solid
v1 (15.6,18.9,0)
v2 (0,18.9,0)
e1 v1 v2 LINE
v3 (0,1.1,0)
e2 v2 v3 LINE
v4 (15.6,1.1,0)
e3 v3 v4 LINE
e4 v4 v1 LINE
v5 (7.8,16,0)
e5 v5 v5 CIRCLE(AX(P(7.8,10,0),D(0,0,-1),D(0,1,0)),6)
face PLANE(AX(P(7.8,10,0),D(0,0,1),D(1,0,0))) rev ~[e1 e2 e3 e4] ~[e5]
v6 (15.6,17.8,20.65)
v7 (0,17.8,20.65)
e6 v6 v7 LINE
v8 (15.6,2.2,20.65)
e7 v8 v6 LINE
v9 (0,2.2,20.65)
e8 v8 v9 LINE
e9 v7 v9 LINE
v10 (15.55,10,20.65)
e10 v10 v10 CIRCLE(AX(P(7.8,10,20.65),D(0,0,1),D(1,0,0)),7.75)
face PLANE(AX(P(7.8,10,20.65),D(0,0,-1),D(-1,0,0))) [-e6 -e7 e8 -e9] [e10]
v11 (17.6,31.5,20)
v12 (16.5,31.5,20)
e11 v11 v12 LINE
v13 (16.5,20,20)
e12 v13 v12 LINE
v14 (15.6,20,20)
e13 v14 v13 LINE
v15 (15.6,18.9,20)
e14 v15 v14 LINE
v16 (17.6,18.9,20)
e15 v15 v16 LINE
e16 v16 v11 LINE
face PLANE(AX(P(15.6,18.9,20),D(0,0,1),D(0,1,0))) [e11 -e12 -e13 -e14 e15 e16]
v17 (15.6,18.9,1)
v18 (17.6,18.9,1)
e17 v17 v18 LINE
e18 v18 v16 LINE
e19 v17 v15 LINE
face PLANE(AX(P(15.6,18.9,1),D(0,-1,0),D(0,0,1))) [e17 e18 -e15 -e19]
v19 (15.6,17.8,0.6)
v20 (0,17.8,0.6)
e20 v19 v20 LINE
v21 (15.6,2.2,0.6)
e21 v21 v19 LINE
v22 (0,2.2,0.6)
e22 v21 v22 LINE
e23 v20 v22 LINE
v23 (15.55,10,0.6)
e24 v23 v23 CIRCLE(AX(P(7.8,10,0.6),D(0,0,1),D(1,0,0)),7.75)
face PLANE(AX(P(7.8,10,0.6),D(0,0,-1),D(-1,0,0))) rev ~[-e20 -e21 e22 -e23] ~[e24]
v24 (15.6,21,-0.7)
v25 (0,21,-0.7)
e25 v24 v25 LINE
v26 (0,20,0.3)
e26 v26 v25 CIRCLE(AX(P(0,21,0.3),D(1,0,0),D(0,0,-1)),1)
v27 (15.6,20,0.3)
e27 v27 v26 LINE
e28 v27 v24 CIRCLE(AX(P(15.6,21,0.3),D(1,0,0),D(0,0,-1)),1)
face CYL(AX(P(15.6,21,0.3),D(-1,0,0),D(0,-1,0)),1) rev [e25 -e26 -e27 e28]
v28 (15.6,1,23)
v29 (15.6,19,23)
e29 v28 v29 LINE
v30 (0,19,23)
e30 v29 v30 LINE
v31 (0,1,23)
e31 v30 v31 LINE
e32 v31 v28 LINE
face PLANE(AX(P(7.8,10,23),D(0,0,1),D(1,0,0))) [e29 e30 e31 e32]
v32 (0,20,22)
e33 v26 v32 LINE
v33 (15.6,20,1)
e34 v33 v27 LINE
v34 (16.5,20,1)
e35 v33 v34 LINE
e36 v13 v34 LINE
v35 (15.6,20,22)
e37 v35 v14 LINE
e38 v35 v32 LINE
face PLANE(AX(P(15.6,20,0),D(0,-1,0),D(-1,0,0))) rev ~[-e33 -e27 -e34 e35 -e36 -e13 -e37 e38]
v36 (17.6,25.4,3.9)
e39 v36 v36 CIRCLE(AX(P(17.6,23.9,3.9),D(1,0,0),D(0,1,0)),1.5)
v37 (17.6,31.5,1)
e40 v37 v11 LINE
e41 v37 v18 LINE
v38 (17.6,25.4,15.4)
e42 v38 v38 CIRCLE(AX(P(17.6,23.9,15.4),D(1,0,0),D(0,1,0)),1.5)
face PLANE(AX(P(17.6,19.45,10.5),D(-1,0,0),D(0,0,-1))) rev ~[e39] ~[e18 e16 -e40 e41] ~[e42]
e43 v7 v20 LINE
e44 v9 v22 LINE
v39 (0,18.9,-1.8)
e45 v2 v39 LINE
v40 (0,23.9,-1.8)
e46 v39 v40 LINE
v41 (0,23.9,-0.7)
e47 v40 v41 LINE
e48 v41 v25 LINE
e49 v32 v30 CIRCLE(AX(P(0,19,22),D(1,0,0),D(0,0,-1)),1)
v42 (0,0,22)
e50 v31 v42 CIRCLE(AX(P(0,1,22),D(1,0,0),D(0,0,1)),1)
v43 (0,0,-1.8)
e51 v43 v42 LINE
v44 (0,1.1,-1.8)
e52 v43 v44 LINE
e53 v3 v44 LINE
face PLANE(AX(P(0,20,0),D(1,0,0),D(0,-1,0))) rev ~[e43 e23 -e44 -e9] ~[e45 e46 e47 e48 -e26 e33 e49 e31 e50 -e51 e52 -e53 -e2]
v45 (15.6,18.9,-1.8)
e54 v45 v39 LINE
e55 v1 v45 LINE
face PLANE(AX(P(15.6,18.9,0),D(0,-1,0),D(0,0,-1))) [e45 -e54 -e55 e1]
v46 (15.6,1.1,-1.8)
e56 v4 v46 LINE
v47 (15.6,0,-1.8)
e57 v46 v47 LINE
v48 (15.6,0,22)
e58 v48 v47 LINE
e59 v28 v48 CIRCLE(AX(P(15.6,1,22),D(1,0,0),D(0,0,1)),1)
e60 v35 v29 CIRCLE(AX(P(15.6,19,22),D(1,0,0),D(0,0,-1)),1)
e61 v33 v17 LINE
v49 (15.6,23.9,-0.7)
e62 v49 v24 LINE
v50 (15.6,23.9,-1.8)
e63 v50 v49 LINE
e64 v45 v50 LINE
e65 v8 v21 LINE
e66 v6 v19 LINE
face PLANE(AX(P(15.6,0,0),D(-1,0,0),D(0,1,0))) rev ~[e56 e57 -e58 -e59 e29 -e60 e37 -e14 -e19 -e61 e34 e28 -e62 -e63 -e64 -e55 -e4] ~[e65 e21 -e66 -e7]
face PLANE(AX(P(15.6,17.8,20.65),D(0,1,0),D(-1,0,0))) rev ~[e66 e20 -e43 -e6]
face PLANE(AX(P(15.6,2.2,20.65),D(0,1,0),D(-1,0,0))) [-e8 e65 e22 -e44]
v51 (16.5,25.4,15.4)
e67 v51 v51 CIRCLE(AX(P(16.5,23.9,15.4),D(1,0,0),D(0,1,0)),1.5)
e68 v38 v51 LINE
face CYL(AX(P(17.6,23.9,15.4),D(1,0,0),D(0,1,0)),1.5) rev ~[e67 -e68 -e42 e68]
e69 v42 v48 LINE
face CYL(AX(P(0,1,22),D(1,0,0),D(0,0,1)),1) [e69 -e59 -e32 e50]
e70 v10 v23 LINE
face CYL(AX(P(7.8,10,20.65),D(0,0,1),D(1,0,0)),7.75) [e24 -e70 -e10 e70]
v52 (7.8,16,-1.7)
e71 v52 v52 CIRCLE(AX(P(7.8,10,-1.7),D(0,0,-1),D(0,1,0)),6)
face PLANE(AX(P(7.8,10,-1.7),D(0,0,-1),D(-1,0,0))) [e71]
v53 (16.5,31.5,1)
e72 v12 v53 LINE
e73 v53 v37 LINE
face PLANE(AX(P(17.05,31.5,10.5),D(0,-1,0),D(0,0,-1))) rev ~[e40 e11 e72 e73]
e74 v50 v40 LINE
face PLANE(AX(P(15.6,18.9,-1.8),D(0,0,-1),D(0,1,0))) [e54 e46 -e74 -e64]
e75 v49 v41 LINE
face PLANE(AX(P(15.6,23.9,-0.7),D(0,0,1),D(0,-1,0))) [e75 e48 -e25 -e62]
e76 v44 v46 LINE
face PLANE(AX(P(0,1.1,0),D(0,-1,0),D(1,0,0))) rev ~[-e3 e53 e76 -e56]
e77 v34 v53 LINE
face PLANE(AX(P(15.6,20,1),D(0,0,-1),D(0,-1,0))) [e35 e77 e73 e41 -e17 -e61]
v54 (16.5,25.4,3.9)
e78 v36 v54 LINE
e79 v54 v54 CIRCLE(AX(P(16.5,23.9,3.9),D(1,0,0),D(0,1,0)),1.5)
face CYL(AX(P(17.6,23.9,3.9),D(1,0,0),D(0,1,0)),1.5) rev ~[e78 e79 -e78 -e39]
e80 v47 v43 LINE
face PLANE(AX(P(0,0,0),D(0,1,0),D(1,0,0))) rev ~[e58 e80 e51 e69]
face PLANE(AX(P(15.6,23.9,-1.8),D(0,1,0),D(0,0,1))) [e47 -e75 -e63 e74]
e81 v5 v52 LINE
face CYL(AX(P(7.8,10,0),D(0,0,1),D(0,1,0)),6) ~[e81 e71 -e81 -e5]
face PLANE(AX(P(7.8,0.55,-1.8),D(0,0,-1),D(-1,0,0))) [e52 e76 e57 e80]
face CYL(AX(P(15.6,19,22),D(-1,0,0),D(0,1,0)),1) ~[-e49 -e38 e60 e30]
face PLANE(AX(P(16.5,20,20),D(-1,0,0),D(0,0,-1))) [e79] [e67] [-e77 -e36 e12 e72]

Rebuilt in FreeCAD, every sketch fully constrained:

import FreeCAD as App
import Part
import Sketcher

V = App.Vector


def edges_at(feature, points):
    """Names of the edges that pass closest to the given points."""
    edges = feature.Shape.Edges
    near = lambda p: min(range(len(edges)), key=lambda i: edges[i].distToShape(Part.Vertex(*p))[0])
    return sorted({f"Edge{near(p) + 1}" for p in points})

doc = App.newDocument("Part")
body = doc.addObject("PartDesign::Body", "Body")

sketch1 = body.newObject("Sketcher::SketchObject", "Sketch")
sketch1.AttachmentSupport = (doc.getObject("XY_Plane"), [""])
sketch1.MapMode = "FlatFace"
sketch1.addGeometry(Part.LineSegment(V(16, 0, 0), V(16, 20, 0)), False)
sketch1.addGeometry(Part.LineSegment(V(16, 20, 0), V(0, 20, 0)), False)
sketch1.addGeometry(Part.LineSegment(V(0, 20, 0), V(0, 0, 0)), False)
sketch1.addGeometry(Part.LineSegment(V(0, 0, 0), V(16, 0, 0)), False)
sketch1.addConstraint(Sketcher.Constraint("Coincident", 0, 2, 1, 1))
sketch1.addConstraint(Sketcher.Constraint("Coincident", 1, 2, 2, 1))
sketch1.addConstraint(Sketcher.Constraint("Coincident", 2, 2, 3, 1))
sketch1.addConstraint(Sketcher.Constraint("Coincident", 3, 2, 0, 1))
sketch1.addConstraint(Sketcher.Constraint("Vertical", 0))
sketch1.addConstraint(Sketcher.Constraint("Horizontal", 1))
sketch1.addConstraint(Sketcher.Constraint("Vertical", 2))
sketch1.addConstraint(Sketcher.Constraint("Horizontal", 3))
sketch1.addConstraint(Sketcher.Constraint("Coincident", 2, 2, -1, 1))
sketch1.addConstraint(Sketcher.Constraint("DistanceY", 0, 1, 0, 2, 20.0))
sketch1.addConstraint(Sketcher.Constraint("DistanceX", 1, 2, 1, 1, 15.6))
pad1 = body.newObject("PartDesign::Pad", "Pad")
pad1.Profile = sketch1
pad1.Length = 23

sketch2 = body.newObject("Sketcher::SketchObject", "Sketch001")
sketch2.AttachmentSupport = (doc.getObject("XY_Plane"), [""])
sketch2.MapMode = "FlatFace"
sketch2.addGeometry(Part.Circle(V(8, 10, 0), V(0, 0, 1), 6), False)
sketch2.addConstraint(Sketcher.Constraint("Diameter", 0, 12.0))
sketch2.addConstraint(Sketcher.Constraint("DistanceY", -1, 1, 0, 3, 10.0))
sketch2.addConstraint(Sketcher.Constraint("DistanceX", -1, 1, 0, 3, 7.8))
pad2 = body.newObject("PartDesign::Pad", "Pad001")
pad2.Profile = sketch2
pad2.Length = 1.7
pad2.Reversed = True

sketch3 = body.newObject("Sketcher::SketchObject", "Sketch002")
sketch3.AttachmentSupport = (doc.getObject("YZ_Plane"), [""])
sketch3.MapMode = "FlatFace"
sketch3.AttachmentOffset = App.Placement(V(0, 0, 15.6), App.Rotation())
sketch3.addGeometry(Part.LineSegment(V(18.9, 0, 0), V(18.9, -1.8, 0)), False)
sketch3.addGeometry(Part.LineSegment(V(18.9, -1.8, 0), V(23.9, -1.8, 0)), False)
sketch3.addGeometry(Part.LineSegment(V(23.9, -1.8, 0), V(23.9, -0.7, 0)), False)
sketch3.addGeometry(Part.LineSegment(V(23.9, -0.7, 0), V(20, -0.7, 0)), False)
sketch3.addGeometry(Part.LineSegment(V(20, -0.7, 0), V(20, 0, 0)), False)
sketch3.addGeometry(Part.LineSegment(V(20, 0, 0), V(18.9, 0, 0)), False)
sketch3.addConstraint(Sketcher.Constraint("Coincident", 0, 2, 1, 1))
sketch3.addConstraint(Sketcher.Constraint("Coincident", 1, 2, 2, 1))
sketch3.addConstraint(Sketcher.Constraint("Coincident", 2, 2, 3, 1))
sketch3.addConstraint(Sketcher.Constraint("Coincident", 3, 2, 4, 1))
sketch3.addConstraint(Sketcher.Constraint("Coincident", 4, 2, 5, 1))
sketch3.addConstraint(Sketcher.Constraint("Coincident", 5, 2, 0, 1))
sketch3.addConstraint(Sketcher.Constraint("Vertical", 0))
sketch3.addConstraint(Sketcher.Constraint("Horizontal", 1))
sketch3.addConstraint(Sketcher.Constraint("Vertical", 2))
sketch3.addConstraint(Sketcher.Constraint("Horizontal", 3))
sketch3.addConstraint(Sketcher.Constraint("Vertical", 4))
sketch3.addConstraint(Sketcher.Constraint("Horizontal", 5))
sketch3.addConstraint(Sketcher.Constraint("PointOnObject", 4, 2, -1))
sketch3.addConstraint(Sketcher.Constraint("Equal", 5, 2))
sketch3.addConstraint(Sketcher.Constraint("DistanceX", 1, 1, 1, 2, 5.0))
sketch3.addConstraint(Sketcher.Constraint("DistanceX", 3, 2, 3, 1, 3.9))
sketch3.addConstraint(Sketcher.Constraint("DistanceY", 0, 2, 0, 1, 1.8))
sketch3.addConstraint(Sketcher.Constraint("DistanceX", -1, 1, 3, 2, 20.0))
pad3 = body.newObject("PartDesign::Pad", "Pad002")
pad3.Profile = sketch3
pad3.Length = 15.6
pad3.Reversed = True

sketch4 = body.newObject("Sketcher::SketchObject", "Sketch003")
sketch4.AttachmentSupport = (doc.getObject("YZ_Plane"), [""])
sketch4.MapMode = "FlatFace"
sketch4.AttachmentOffset = App.Placement(V(0, 0, 15.6), App.Rotation())
sketch4.addGeometry(Part.LineSegment(V(18.9, 20, 0), V(18.9, 1, 0)), False)
sketch4.addGeometry(Part.LineSegment(V(18.9, 1, 0), V(20, 1, 0)), False)
sketch4.addGeometry(Part.LineSegment(V(20, 1, 0), V(20, 20, 0)), False)
sketch4.addGeometry(Part.LineSegment(V(20, 20, 0), V(18.9, 20, 0)), False)
sketch4.addConstraint(Sketcher.Constraint("Coincident", 0, 2, 1, 1))
sketch4.addConstraint(Sketcher.Constraint("Coincident", 1, 2, 2, 1))
sketch4.addConstraint(Sketcher.Constraint("Coincident", 2, 2, 3, 1))
sketch4.addConstraint(Sketcher.Constraint("Coincident", 3, 2, 0, 1))
sketch4.addConstraint(Sketcher.Constraint("Vertical", 0))
sketch4.addConstraint(Sketcher.Constraint("Horizontal", 1))
sketch4.addConstraint(Sketcher.Constraint("Vertical", 2))
sketch4.addConstraint(Sketcher.Constraint("Horizontal", 3))
sketch4.addConstraint(Sketcher.Constraint("DistanceY", 0, 2, 0, 1, 19.0))
sketch4.addConstraint(Sketcher.Constraint("DistanceX", 1, 1, 1, 2, 1.1))
sketch4.addConstraint(Sketcher.Constraint("DistanceY", -1, 1, 0, 2, 1.0))
sketch4.addConstraint(Sketcher.Constraint("DistanceX", -1, 1, 1, 2, 20.0))
pad4 = body.newObject("PartDesign::Pad", "Pad003")
pad4.Profile = sketch4
pad4.Length = 2

sketch5 = body.newObject("Sketcher::SketchObject", "Sketch004")
sketch5.AttachmentSupport = (doc.getObject("XZ_Plane"), [""])
sketch5.MapMode = "FlatFace"
sketch5.AttachmentOffset = App.Placement(V(0, 0, -20), App.Rotation())
sketch5.addGeometry(Part.LineSegment(V(16.5, 1, 0), V(16.5, 20, 0)), False)
sketch5.addGeometry(Part.LineSegment(V(16.5, 20, 0), V(17.6, 20, 0)), False)
sketch5.addGeometry(Part.LineSegment(V(17.6, 20, 0), V(17.6, 1, 0)), False)
sketch5.addGeometry(Part.LineSegment(V(17.6, 1, 0), V(16.5, 1, 0)), False)
sketch5.addConstraint(Sketcher.Constraint("Coincident", 0, 2, 1, 1))
sketch5.addConstraint(Sketcher.Constraint("Coincident", 1, 2, 2, 1))
sketch5.addConstraint(Sketcher.Constraint("Coincident", 2, 2, 3, 1))
sketch5.addConstraint(Sketcher.Constraint("Coincident", 3, 2, 0, 1))
sketch5.addConstraint(Sketcher.Constraint("Vertical", 0))
sketch5.addConstraint(Sketcher.Constraint("Horizontal", 1))
sketch5.addConstraint(Sketcher.Constraint("Vertical", 2))
sketch5.addConstraint(Sketcher.Constraint("Horizontal", 3))
sketch5.addConstraint(Sketcher.Constraint("DistanceY", 0, 1, 0, 2, 19.0))
sketch5.addConstraint(Sketcher.Constraint("DistanceX", 1, 1, 1, 2, 1.1))
sketch5.addConstraint(Sketcher.Constraint("DistanceY", -1, 1, 0, 2, 20.0))
sketch5.addConstraint(Sketcher.Constraint("DistanceX", -1, 1, 0, 2, 16.5))
pad5 = body.newObject("PartDesign::Pad", "Pad004")
pad5.Profile = sketch5
pad5.Length = 11.5
pad5.Reversed = True

sketch6 = body.newObject("Sketcher::SketchObject", "Sketch005")
sketch6.AttachmentSupport = (doc.getObject("XY_Plane"), [""])
sketch6.MapMode = "FlatFace"
sketch6.addGeometry(Part.LineSegment(V(0, 0, 0), V(0, 1.1, 0)), False)
sketch6.addGeometry(Part.LineSegment(V(0, 1.1, 0), V(15.6, 1.1, 0)), False)
sketch6.addGeometry(Part.LineSegment(V(15.6, 1.1, 0), V(15.6, 0, 0)), False)
sketch6.addGeometry(Part.LineSegment(V(15.6, 0, 0), V(0, 0, 0)), False)
sketch6.addConstraint(Sketcher.Constraint("Coincident", 0, 2, 1, 1))
sketch6.addConstraint(Sketcher.Constraint("Coincident", 1, 2, 2, 1))
sketch6.addConstraint(Sketcher.Constraint("Coincident", 2, 2, 3, 1))
sketch6.addConstraint(Sketcher.Constraint("Coincident", 3, 2, 0, 1))
sketch6.addConstraint(Sketcher.Constraint("Vertical", 0))
sketch6.addConstraint(Sketcher.Constraint("Horizontal", 1))
sketch6.addConstraint(Sketcher.Constraint("Vertical", 2))
sketch6.addConstraint(Sketcher.Constraint("Horizontal", 3))
sketch6.addConstraint(Sketcher.Constraint("Coincident", 3, 2, -1, 1))
sketch6.addConstraint(Sketcher.Constraint("DistanceX", 1, 1, 1, 2, 15.6))
sketch6.addConstraint(Sketcher.Constraint("DistanceY", 0, 1, 0, 2, 1.1))
pad6 = body.newObject("PartDesign::Pad", "Pad005")
pad6.Profile = sketch6
pad6.Length = 1.8
pad6.Reversed = True

sketch7 = body.newObject("Sketcher::SketchObject", "Sketch006")
sketch7.AttachmentSupport = (doc.getObject("YZ_Plane"), [""])
sketch7.MapMode = "FlatFace"
sketch7.AttachmentOffset = App.Placement(V(0, 0, 17.6), App.Rotation())
sketch7.addGeometry(Part.Circle(V(23.9, 15.4, 0), V(0, 0, 1), 1.5), False)
sketch7.addGeometry(Part.Circle(V(23.9, 3.9, 0), V(0, 0, 1), 1.5), False)
sketch7.addConstraint(Sketcher.Constraint("Equal", 0, 1))
sketch7.addConstraint(Sketcher.Constraint("Vertical", 0, 3, 1, 3))
sketch7.addConstraint(Sketcher.Constraint("Diameter", 0, 3.0))
sketch7.addConstraint(Sketcher.Constraint("DistanceX", -1, 1, 0, 3, 23.9))
sketch7.addConstraint(Sketcher.Constraint("DistanceY", -1, 1, 0, 3, 15.4))
sketch7.addConstraint(Sketcher.Constraint("DistanceY", -1, 1, 1, 3, 3.9))
pocket1 = body.newObject("PartDesign::Pocket", "Pocket")
pocket1.Profile = sketch7
pocket1.Type = "UpToFirst"

sketch8 = body.newObject("Sketcher::SketchObject", "Sketch007")
sketch8.AttachmentSupport = (doc.getObject("XY_Plane"), [""])
sketch8.MapMode = "FlatFace"
sketch8.AttachmentOffset = App.Placement(V(0, 0, 20.65), App.Rotation())
sketch8.addGeometry(Part.LineSegment(V(0, 2, 0), V(16, 2, 0)), False)
sketch8.addGeometry(Part.LineSegment(V(16, 2, 0), V(16, 18, 0)), False)
sketch8.addGeometry(Part.LineSegment(V(16, 18, 0), V(0, 18, 0)), False)
sketch8.addGeometry(Part.LineSegment(V(0, 18, 0), V(0, 2, 0)), False)
sketch8.addGeometry(Part.Circle(V(8, 10, 0), V(0, 0, 1), 8), False)
sketch8.addConstraint(Sketcher.Constraint("Coincident", 0, 2, 1, 1))
sketch8.addConstraint(Sketcher.Constraint("Coincident", 1, 2, 2, 1))
sketch8.addConstraint(Sketcher.Constraint("Coincident", 2, 2, 3, 1))
sketch8.addConstraint(Sketcher.Constraint("Coincident", 3, 2, 0, 1))
sketch8.addConstraint(Sketcher.Constraint("Horizontal", 0))
sketch8.addConstraint(Sketcher.Constraint("Vertical", 1))
sketch8.addConstraint(Sketcher.Constraint("Horizontal", 2))
sketch8.addConstraint(Sketcher.Constraint("Vertical", 3))
sketch8.addConstraint(Sketcher.Constraint("PointOnObject", 2, 2, -2))
sketch8.addConstraint(Sketcher.Constraint("Equal", 2, 1))
sketch8.addConstraint(Sketcher.Constraint("Diameter", 4, 15.5))
sketch8.addConstraint(Sketcher.Constraint("DistanceX", 0, 1, 0, 2, 15.6))
sketch8.addConstraint(Sketcher.Constraint("DistanceY", -1, 1, 4, 3, 10.0))
sketch8.addConstraint(Sketcher.Constraint("DistanceX", -1, 1, 4, 3, 7.8))
sketch8.addConstraint(Sketcher.Constraint("DistanceY", -1, 1, 0, 2, 2.2))
pocket2 = body.newObject("PartDesign::Pocket", "Pocket001")
pocket2.Profile = sketch8
pocket2.Length = 20.05
doc.recompute()

fillet = body.newObject("PartDesign::Fillet", "Fillet")
fillet.Base = (pocket2, edges_at(pocket2, [(7.8, 20, 23), (7.8, 0, 23), (7.8, 20, -0.7)]))
fillet.Radius = 1

doc.recompute()
